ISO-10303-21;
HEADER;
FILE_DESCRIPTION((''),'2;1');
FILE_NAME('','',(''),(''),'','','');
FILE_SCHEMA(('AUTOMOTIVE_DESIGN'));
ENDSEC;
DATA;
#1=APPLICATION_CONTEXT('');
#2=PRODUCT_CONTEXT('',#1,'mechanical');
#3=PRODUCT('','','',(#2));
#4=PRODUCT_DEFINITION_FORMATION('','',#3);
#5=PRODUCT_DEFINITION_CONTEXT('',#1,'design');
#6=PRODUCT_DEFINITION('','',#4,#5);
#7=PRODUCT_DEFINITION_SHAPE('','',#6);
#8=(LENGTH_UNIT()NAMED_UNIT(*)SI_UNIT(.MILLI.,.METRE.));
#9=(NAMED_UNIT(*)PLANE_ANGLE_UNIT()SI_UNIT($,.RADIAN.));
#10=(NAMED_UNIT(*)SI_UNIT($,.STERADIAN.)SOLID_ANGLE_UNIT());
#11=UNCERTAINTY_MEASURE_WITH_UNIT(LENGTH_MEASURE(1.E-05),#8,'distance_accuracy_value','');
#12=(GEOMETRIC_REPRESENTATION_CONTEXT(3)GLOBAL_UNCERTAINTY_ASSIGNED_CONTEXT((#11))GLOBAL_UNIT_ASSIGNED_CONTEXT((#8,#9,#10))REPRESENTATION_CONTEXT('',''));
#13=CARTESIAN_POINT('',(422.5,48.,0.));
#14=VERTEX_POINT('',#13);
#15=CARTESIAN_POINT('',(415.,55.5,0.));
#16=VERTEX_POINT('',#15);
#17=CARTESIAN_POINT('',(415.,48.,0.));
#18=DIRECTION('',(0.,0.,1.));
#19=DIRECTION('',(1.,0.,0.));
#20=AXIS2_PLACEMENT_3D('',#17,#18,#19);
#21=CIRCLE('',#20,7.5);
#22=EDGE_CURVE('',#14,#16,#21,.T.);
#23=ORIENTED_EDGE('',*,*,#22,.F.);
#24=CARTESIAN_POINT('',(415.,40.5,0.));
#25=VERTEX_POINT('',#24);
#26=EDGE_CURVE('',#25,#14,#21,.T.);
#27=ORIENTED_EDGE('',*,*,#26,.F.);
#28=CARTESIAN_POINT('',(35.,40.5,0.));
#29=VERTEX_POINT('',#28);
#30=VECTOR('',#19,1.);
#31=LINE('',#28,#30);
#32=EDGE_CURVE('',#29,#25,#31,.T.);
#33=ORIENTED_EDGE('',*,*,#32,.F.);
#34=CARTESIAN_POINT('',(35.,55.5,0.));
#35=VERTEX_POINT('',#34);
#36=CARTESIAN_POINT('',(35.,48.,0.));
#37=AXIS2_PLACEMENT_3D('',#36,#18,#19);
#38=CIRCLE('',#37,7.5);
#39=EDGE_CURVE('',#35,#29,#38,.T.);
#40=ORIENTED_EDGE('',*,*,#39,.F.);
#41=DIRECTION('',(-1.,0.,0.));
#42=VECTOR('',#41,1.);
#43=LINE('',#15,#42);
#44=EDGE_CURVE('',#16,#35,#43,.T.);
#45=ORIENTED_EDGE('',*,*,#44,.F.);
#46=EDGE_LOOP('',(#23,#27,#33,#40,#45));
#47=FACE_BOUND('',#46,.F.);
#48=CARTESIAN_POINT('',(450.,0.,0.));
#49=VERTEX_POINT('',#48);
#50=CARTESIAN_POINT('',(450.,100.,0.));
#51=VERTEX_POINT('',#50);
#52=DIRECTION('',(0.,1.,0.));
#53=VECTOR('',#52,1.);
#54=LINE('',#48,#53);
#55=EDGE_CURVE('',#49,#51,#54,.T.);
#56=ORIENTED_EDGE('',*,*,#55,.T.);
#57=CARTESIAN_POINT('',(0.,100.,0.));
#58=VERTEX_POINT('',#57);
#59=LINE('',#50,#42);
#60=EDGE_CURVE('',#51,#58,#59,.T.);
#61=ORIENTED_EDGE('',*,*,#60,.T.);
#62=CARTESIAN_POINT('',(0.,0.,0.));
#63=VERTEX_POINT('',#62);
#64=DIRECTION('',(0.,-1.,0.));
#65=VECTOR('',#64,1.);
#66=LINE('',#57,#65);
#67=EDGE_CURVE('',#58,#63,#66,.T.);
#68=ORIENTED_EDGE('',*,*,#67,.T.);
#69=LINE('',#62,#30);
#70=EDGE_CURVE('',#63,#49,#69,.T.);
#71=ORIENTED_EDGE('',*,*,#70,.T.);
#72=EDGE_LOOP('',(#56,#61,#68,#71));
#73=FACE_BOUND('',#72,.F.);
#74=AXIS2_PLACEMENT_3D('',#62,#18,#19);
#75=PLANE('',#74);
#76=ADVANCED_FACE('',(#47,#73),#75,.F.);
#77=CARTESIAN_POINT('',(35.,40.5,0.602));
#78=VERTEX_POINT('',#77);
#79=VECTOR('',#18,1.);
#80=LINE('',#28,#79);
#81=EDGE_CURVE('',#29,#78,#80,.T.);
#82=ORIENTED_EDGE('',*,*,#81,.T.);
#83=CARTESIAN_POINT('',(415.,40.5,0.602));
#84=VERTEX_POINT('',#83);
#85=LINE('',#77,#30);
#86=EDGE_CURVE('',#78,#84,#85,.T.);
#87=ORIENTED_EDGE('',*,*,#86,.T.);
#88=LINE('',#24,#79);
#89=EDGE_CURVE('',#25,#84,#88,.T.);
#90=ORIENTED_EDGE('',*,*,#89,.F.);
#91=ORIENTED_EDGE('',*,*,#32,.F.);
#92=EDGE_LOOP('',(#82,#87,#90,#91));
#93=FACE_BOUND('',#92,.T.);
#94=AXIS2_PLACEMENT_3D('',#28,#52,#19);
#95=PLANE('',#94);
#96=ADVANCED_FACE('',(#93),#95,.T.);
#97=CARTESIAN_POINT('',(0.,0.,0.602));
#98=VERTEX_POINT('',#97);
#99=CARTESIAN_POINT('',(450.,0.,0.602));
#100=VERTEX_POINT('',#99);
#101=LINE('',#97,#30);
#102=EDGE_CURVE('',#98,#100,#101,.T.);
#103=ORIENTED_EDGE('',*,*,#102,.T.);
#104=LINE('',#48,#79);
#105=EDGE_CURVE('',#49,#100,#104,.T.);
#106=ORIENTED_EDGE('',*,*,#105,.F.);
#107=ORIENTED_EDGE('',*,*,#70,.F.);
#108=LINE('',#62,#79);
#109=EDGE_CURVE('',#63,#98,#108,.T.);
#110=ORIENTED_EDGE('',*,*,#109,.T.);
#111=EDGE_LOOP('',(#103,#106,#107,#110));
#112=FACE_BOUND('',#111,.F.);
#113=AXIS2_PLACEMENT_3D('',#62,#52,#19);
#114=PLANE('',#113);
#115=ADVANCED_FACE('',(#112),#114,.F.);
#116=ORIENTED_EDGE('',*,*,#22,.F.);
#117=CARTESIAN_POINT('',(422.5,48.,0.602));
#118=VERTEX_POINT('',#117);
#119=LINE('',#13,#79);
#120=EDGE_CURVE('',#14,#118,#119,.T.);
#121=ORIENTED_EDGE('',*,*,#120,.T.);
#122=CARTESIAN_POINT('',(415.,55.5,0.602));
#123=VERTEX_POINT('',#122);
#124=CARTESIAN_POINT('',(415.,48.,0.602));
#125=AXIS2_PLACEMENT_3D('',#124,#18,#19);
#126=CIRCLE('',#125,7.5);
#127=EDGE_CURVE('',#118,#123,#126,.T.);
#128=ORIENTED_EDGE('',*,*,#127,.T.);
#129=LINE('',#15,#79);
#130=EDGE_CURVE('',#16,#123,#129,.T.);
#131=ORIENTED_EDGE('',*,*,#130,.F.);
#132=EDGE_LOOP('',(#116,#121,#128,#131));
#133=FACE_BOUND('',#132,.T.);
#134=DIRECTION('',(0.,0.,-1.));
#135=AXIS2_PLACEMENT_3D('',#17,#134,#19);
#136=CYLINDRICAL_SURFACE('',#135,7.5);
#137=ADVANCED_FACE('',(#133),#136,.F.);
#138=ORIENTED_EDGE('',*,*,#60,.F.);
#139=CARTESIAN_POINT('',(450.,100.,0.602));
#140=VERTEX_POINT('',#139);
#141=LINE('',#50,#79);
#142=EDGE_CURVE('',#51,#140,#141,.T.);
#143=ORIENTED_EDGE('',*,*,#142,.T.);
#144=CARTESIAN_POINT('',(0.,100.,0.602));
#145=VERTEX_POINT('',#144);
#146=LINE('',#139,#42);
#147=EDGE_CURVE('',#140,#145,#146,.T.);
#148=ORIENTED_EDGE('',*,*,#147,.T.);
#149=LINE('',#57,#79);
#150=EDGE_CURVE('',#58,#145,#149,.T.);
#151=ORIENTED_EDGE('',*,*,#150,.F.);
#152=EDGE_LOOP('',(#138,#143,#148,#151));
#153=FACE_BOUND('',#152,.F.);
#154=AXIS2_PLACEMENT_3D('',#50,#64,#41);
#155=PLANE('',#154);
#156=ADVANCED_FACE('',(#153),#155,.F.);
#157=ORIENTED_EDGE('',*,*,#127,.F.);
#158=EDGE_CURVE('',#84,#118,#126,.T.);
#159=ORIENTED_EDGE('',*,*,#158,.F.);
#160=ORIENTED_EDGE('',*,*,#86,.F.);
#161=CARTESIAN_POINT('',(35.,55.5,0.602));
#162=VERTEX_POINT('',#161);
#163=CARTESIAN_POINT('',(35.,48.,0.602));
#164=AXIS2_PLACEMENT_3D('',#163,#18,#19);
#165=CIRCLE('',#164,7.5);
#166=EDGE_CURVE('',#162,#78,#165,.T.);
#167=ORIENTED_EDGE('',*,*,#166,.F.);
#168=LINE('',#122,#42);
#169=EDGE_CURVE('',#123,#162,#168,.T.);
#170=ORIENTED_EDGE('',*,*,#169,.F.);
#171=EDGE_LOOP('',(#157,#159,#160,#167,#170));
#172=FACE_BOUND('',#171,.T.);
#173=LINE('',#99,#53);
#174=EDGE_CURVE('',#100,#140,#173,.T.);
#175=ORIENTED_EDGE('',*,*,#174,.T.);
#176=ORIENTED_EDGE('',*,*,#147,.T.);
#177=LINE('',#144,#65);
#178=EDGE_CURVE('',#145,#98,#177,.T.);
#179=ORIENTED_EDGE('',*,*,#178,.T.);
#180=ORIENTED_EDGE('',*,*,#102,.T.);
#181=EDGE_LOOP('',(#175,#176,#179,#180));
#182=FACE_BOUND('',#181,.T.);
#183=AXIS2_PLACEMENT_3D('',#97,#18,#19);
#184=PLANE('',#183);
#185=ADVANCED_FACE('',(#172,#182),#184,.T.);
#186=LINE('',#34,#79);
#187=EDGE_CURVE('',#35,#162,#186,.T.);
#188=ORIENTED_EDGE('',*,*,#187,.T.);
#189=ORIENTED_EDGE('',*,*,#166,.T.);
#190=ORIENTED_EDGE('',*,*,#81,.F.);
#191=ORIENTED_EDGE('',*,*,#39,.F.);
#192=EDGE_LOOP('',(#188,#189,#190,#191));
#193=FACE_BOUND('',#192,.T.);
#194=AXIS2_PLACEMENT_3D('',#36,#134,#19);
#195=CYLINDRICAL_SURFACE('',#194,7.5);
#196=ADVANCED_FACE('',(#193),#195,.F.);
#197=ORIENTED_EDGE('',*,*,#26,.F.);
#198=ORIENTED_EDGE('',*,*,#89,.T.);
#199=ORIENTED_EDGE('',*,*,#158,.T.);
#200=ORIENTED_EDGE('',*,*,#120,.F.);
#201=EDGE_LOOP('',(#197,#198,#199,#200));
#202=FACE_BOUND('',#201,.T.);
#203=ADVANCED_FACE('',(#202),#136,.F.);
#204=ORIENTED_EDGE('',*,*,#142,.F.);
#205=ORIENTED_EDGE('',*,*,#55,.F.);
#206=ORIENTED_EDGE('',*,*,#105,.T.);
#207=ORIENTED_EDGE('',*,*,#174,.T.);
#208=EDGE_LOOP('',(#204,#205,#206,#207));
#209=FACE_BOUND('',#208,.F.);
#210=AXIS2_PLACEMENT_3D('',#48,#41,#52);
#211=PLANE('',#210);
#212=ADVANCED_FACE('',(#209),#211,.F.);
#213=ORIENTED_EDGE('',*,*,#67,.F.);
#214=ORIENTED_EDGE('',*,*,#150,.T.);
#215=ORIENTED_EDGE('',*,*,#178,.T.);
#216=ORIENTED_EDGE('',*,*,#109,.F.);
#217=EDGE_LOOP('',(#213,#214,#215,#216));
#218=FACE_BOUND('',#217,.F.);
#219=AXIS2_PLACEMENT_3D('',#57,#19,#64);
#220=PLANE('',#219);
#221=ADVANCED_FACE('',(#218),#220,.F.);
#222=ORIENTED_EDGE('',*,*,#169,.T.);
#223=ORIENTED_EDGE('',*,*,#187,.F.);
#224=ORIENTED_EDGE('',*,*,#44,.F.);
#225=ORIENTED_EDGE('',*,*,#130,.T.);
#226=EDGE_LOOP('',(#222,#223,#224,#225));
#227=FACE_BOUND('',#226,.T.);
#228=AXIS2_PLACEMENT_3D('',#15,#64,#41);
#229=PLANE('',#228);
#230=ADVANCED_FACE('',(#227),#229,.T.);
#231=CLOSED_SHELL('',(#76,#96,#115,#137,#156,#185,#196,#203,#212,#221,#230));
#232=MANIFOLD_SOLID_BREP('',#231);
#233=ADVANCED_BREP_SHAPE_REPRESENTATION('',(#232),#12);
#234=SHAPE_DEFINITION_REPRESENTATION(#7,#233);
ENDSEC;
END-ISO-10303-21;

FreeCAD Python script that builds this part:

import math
import FreeCAD as App
import Part
import Sketcher
from FreeCAD import Vector
Q = App.Units.Quantity


def add_polygon(sketch, points):
    """Adds a closed chain of lines whose ends are joined by coincident constraints."""
    first, n = sketch.GeometryCount, len(points)
    for a, b in zip(points, points[1:] + points[:1]):
        sketch.addGeometry(Part.LineSegment(App.Vector(*a, 0), App.Vector(*b, 0)), False)
    for i in range(n):
        sketch.addConstraint(Sketcher.Constraint("Coincident", first + i, 2, first + (i + 1) % n, 1))

doc = App.newDocument("Part")
params = doc.addObject("Spreadsheet::Sheet", "Params")
for row, (alias, value) in enumerate([
    ("sketch1_radius", "7.5 mm"),
    ("sketch1_width", "450 mm"),
    ("sketch1_width2", "380 mm"),
    ("sketch1_height", "100 mm"),
    ("pad1_length", "0.602 mm"),
], start=1):
    params.set(f"A{row}", alias)
    params.set(f"B{row}", "=" + value)
    params.setAlias(f"B{row}", alias)

body = doc.addObject("PartDesign::Body", "Body")

sketch1 = body.newObject("Sketcher::SketchObject", "Sketch")
sketch1.AttachmentSupport = (doc.getObject("XY_Plane"), [""])
sketch1.MapMode = "FlatFace"
add_polygon(sketch1, [(0, 100), (0, 0), (450, 0), (450, 100)])
sketch1.addGeometry(Part.LineSegment(Vector(415, 40, 0), Vector(35, 40, 0)), False)
sketch1.addGeometry(Part.ArcOfCircle(Part.Circle(Vector(35, 48, 0), Vector(0, 0, 1), 8), math.radians(90), math.radians(270)), False)
sketch1.addGeometry(Part.LineSegment(Vector(35, 56, 0), Vector(415, 56, 0)), False)
sketch1.addGeometry(Part.ArcOfCircle(Part.Circle(Vector(415, 48, 0), Vector(0, 0, 1), 8), math.radians(-90), math.radians(90)), False)
sketch1.addConstraint(Sketcher.Constraint("Tangent", 4, 2, 5, 2))
sketch1.addConstraint(Sketcher.Constraint("Tangent", 5, 1, 6, 1))
sketch1.addConstraint(Sketcher.Constraint("Tangent", 6, 2, 7, 2))
sketch1.addConstraint(Sketcher.Constraint("Tangent", 7, 1, 4, 1))
sketch1.addConstraint(Sketcher.Constraint("Vertical", 0))
sketch1.addConstraint(Sketcher.Constraint("Horizontal", 1))
sketch1.addConstraint(Sketcher.Constraint("Vertical", 2))
sketch1.addConstraint(Sketcher.Constraint("Horizontal", 3))
sketch1.addConstraint(Sketcher.Constraint("Horizontal", 4))
sketch1.addConstraint(Sketcher.Constraint("Horizontal", 6))
sketch1.addConstraint(Sketcher.Constraint("Coincident", 0, 2, -1, 1))
sketch1.addConstraint(Sketcher.Constraint("Radius", 5, Q("7.5 mm")))
sketch1.addConstraint(Sketcher.Constraint("DistanceX", 1, 1, 1, 2, Q("450 mm")))
sketch1.addConstraint(Sketcher.Constraint("DistanceX", 4, 2, 4, 1, Q("380 mm")))
sketch1.addConstraint(Sketcher.Constraint("DistanceY", 0, 2, 0, 1, Q("100 mm")))
sketch1.addConstraint(Sketcher.Constraint("DistanceX", -1, 1, 5, 3, Q("35 mm")))
sketch1.addConstraint(Sketcher.Constraint("DistanceY", 7, 3, 2, 2, Q("52 mm")))
sketch1.setExpression("Constraints[15]", "Params.sketch1_radius")
sketch1.setExpression("Constraints[16]", "Params.sketch1_width")
sketch1.setExpression("Constraints[17]", "Params.sketch1_width2")
sketch1.setExpression("Constraints[18]", "Params.sketch1_height")
pad1 = body.newObject("PartDesign::Pad", "Pad")
pad1.Profile = sketch1
pad1.setExpression("Length", "Params.pad1_length")

doc.recompute()
